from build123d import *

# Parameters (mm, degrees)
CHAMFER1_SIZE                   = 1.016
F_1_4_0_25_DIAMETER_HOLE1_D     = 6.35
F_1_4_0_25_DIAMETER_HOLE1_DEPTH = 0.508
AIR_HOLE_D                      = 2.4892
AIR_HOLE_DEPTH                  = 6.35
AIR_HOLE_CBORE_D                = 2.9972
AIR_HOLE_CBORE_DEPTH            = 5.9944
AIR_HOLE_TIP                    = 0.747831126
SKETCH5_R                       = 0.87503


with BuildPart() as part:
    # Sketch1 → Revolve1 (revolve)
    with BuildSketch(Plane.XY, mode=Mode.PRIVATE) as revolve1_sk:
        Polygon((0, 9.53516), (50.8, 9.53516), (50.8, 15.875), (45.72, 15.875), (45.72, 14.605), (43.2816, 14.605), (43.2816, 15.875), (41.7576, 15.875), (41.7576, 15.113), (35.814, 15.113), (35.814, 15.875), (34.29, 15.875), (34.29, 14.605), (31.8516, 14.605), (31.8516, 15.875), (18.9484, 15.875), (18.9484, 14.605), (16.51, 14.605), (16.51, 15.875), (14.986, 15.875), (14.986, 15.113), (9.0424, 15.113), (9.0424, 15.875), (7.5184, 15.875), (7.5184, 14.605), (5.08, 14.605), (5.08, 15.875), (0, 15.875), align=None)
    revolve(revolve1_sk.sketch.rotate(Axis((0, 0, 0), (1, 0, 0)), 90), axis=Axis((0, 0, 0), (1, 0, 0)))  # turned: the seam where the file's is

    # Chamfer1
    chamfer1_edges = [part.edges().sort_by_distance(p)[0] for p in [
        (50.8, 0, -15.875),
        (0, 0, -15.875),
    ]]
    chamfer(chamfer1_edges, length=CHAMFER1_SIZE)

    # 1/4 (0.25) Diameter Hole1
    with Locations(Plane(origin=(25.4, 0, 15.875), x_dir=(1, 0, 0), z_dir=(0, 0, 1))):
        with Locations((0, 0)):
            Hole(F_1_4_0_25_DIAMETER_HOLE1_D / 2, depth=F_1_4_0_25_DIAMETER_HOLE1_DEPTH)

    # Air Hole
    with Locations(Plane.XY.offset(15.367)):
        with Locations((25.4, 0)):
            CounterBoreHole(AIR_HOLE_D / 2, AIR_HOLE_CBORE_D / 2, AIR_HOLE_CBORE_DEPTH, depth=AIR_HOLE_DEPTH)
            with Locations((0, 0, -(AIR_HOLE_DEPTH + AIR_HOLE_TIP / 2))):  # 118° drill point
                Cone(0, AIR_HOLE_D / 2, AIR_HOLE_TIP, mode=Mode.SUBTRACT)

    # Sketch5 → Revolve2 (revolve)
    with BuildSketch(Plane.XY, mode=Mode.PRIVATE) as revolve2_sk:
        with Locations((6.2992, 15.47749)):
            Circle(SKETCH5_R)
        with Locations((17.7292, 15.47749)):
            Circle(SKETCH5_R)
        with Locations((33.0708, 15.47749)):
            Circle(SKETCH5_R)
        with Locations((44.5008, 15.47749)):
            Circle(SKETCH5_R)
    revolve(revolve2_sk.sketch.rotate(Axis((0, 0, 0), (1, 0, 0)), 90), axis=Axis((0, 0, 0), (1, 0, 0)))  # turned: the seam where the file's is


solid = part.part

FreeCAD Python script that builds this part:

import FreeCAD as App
import Part
import Sketcher

V = App.Vector
Q = App.Units.Quantity


def edges_at(feature, points):
    """Names of the edges that pass closest to the given points."""
    edges = feature.Shape.Edges
    near = lambda p: min(range(len(edges)), key=lambda i: edges[i].distToShape(Part.Vertex(*p))[0])
    return sorted({f"Edge{near(p) + 1}" for p in points})

doc = App.newDocument("Part")
params = doc.addObject("Spreadsheet::Sheet", "Params")
for row, (alias, value) in enumerate([
    ("sketch1_width", "2 in"),
    ("sketch1_width2", "0.2 in"),
    ("sketch1_width3", "0.06 in"),
    ("sketch1_height", "0.05 in"),
    ("sketch1_height2", "0.03 in"),
    ("revolution_angle", "360 deg"),
    ("chamfer_size", "0.04 in"),
    ("sketch2_diameter", "0.25 in"),
    ("hole_diameter", "0.25 in"),
    ("hole_depth", "0.02 in"),
    ("sketch3_diameter", "0.098 in"),
    ("hole2_diameter", "0.098 in"),
    ("hole2_depth", "0.25 in"),
    ("hole2_cbore_diameter", "0.118 in"),
    ("hole2_cbore_depth", "0.236 in"),
    ("revolution2_angle", "360 deg"),
], start=1):
    params.set(f"A{row}", alias)
    params.set(f"B{row}", "=" + value)
    params.setAlias(f"B{row}", alias)

body = doc.addObject("PartDesign::Body", "Body")

sketch1 = body.newObject("Sketcher::SketchObject", "Sketch")
sketch1.AttachmentSupport = (doc.getObject("XY_Plane"), [""])
sketch1.MapMode = "FlatFace"
sketch1.addGeometry([
    Part.LineSegment(V(0, 9.5, 0), V(50.8, 9.5, 0)),
    Part.LineSegment(V(50.8, 9.5, 0), V(50.8, 15.9, 0)),
    Part.LineSegment(V(50.8, 15.9, 0), V(45.7, 15.9, 0)),
    Part.LineSegment(V(45.7, 15.9, 0), V(45.7, 14.6, 0)),
    Part.LineSegment(V(45.7, 14.6, 0), V(43.3, 14.6, 0)),
    Part.LineSegment(V(43.3, 14.6, 0), V(43.3, 15.9, 0)),
    Part.LineSegment(V(43.3, 15.9, 0), V(41.8, 15.9, 0)),
    Part.LineSegment(V(41.8, 15.9, 0), V(41.8, 15.1, 0)),
    Part.LineSegment(V(41.8, 15.1, 0), V(35.8, 15.1, 0)),
    Part.LineSegment(V(35.8, 15.1, 0), V(35.8, 15.9, 0)),
    Part.LineSegment(V(35.8, 15.9, 0), V(34.3, 15.9, 0)),
    Part.LineSegment(V(34.3, 15.9, 0), V(34.3, 14.6, 0)),
    Part.LineSegment(V(34.3, 14.6, 0), V(31.9, 14.6, 0)),
    Part.LineSegment(V(31.9, 14.6, 0), V(31.9, 15.9, 0)),
    Part.LineSegment(V(31.9, 15.9, 0), V(18.9, 15.9, 0)),
    Part.LineSegment(V(18.9, 15.9, 0), V(18.9, 14.6, 0)),
    Part.LineSegment(V(18.9, 14.6, 0), V(16.5, 14.6, 0)),
    Part.LineSegment(V(16.5, 14.6, 0), V(16.5, 15.9, 0)),
    Part.LineSegment(V(16.5, 15.9, 0), V(15, 15.9, 0)),
    Part.LineSegment(V(15, 15.9, 0), V(15, 15.1, 0)),
    Part.LineSegment(V(15, 15.1, 0), V(9, 15.1, 0)),
    Part.LineSegment(V(9, 15.1, 0), V(9, 15.9, 0)),
    Part.LineSegment(V(9, 15.9, 0), V(7.5, 15.9, 0)),
    Part.LineSegment(V(7.5, 15.9, 0), V(7.5, 14.6, 0)),
    Part.LineSegment(V(7.5, 14.6, 0), V(5.1, 14.6, 0)),
    Part.LineSegment(V(5.1, 14.6, 0), V(5.1, 15.9, 0)),
    Part.LineSegment(V(5.1, 15.9, 0), V(0, 15.9, 0)),
    Part.LineSegment(V(0, 15.9, 0), V(0, 9.5, 0)),
], False)
sketch1.addConstraint([
    Sketcher.Constraint("Coincident", 0, 2, 1, 1),
    Sketcher.Constraint("Coincident", 1, 2, 2, 1),
    Sketcher.Constraint("Coincident", 2, 2, 3, 1),
    Sketcher.Constraint("Coincident", 3, 2, 4, 1),
    Sketcher.Constraint("Coincident", 4, 2, 5, 1),
    Sketcher.Constraint("Coincident", 5, 2, 6, 1),
    Sketcher.Constraint("Coincident", 6, 2, 7, 1),
    Sketcher.Constraint("Coincident", 7, 2, 8, 1),
    Sketcher.Constraint("Coincident", 8, 2, 9, 1),
    Sketcher.Constraint("Coincident", 9, 2, 10, 1),
    Sketcher.Constraint("Coincident", 10, 2, 11, 1),
    Sketcher.Constraint("Coincident", 11, 2, 12, 1),
    Sketcher.Constraint("Coincident", 12, 2, 13, 1),
    Sketcher.Constraint("Coincident", 13, 2, 14, 1),
    Sketcher.Constraint("Coincident", 14, 2, 15, 1),
    Sketcher.Constraint("Coincident", 15, 2, 16, 1),
    Sketcher.Constraint("Coincident", 16, 2, 17, 1),
    Sketcher.Constraint("Coincident", 17, 2, 18, 1),
    Sketcher.Constraint("Coincident", 18, 2, 19, 1),
    Sketcher.Constraint("Coincident", 19, 2, 20, 1),
    Sketcher.Constraint("Coincident", 20, 2, 21, 1),
    Sketcher.Constraint("Coincident", 21, 2, 22, 1),
    Sketcher.Constraint("Coincident", 22, 2, 23, 1),
    Sketcher.Constraint("Coincident", 23, 2, 24, 1),
    Sketcher.Constraint("Coincident", 24, 2, 25, 1),
    Sketcher.Constraint("Coincident", 25, 2, 26, 1),
    Sketcher.Constraint("Coincident", 26, 2, 27, 1),
    Sketcher.Constraint("Coincident", 27, 2, 0, 1),
    Sketcher.Constraint("Horizontal", 0),
    Sketcher.Constraint("Vertical", 1),
    Sketcher.Constraint("Horizontal", 2),
    Sketcher.Constraint("Vertical", 3),
    Sketcher.Constraint("Horizontal", 4),
    Sketcher.Constraint("Vertical", 5),
    Sketcher.Constraint("Horizontal", 6),
    Sketcher.Constraint("Vertical", 7),
    Sketcher.Constraint("Horizontal", 8),
    Sketcher.Constraint("Vertical", 9),
    Sketcher.Constraint("Horizontal", 10),
    Sketcher.Constraint("Vertical", 11),
    Sketcher.Constraint("Horizontal", 12),
    Sketcher.Constraint("Vertical", 13),
    Sketcher.Constraint("Horizontal", 14),
    Sketcher.Constraint("Vertical", 15),
    Sketcher.Constraint("Horizontal", 16),
    Sketcher.Constraint("Vertical", 17),
    Sketcher.Constraint("Horizontal", 18),
    Sketcher.Constraint("Vertical", 19),
    Sketcher.Constraint("Horizontal", 20),
    Sketcher.Constraint("Vertical", 21),
    Sketcher.Constraint("Horizontal", 22),
    Sketcher.Constraint("Vertical", 23),
    Sketcher.Constraint("Horizontal", 24),
    Sketcher.Constraint("Vertical", 25),
    Sketcher.Constraint("Horizontal", 26),
    Sketcher.Constraint("Vertical", 27),
    Sketcher.Constraint("PointOnObject", 26, 2, -2),
    Sketcher.Constraint("Horizontal", 2, 2, 5, 2),
    Sketcher.Constraint("Horizontal", 6, 2, 9, 2),
    Sketcher.Constraint("Horizontal", 4, 2, 11, 2),
    Sketcher.Constraint("Horizontal", 10, 2, 13, 2),
    Sketcher.Constraint("Horizontal", 12, 2, 15, 2),
    Sketcher.Constraint("Horizontal", 14, 2, 17, 2),
    Sketcher.Constraint("Horizontal", 8, 2, 19, 2),
    Sketcher.Constraint("Horizontal", 18, 2, 21, 2),
    Sketcher.Constraint("Horizontal", 16, 2, 23, 2),
    Sketcher.Constraint("Horizontal", 22, 2, 25, 2),
    Sketcher.Constraint("Equal", 6, 10),
    Sketcher.Constraint("Equal", 4, 12),
    Sketcher.Constraint("Equal", 12, 16),
    Sketcher.Constraint("Equal", 10, 18),
    Sketcher.Constraint("Equal", 8, 20),
    Sketcher.Constraint("Equal", 18, 22),
    Sketcher.Constraint("Equal", 16, 24),
    Sketcher.Constraint("Equal", 2, 26),
    Sketcher.Constraint("DistanceX", 0, 1, 0, 2, Q("2 in")),
    Sketcher.Constraint("DistanceX", 2, 2, 2, 1, Q("0.2 in")),
    Sketcher.Constraint("DistanceX", 6, 2, 6, 1, Q("0.06 in")),
    Sketcher.Constraint("DistanceY", 3, 2, 3, 1, Q("0.05 in")),
    Sketcher.Constraint("DistanceY", 7, 2, 7, 1, Q("0.03 in")),
    Sketcher.Constraint("DistanceX", 16, 2, 11, 2, Q("0.7 in")),
    Sketcher.Constraint("DistanceX", 4, 2, 4, 1, Q("0.096 in")),
    Sketcher.Constraint("DistanceY", 1, 1, 1, 2, Q("0.2496 in")),
    Sketcher.Constraint("DistanceY", -1, 1, 1, 2, Q("0.625 in")),
])
sketch1.setExpression("Constraints[75]", "Params.sketch1_width")
sketch1.setExpression("Constraints[76]", "Params.sketch1_width2")
sketch1.setExpression("Constraints[77]", "Params.sketch1_width3")
sketch1.setExpression("Constraints[78]", "Params.sketch1_height")
sketch1.setExpression("Constraints[79]", "Params.sketch1_height2")
revolution = body.newObject("PartDesign::Revolution", "Revolution")
revolution.Profile = sketch1
revolution.ReferenceAxis = (sketch1, ["H_Axis"])
revolution.setExpression("Angle", "Params.revolution_angle")
doc.recompute()

chamfer = body.newObject("PartDesign::Chamfer", "Chamfer")
chamfer.Base = (revolution, edges_at(revolution, [(50.8, 0, -15.875), (0, 0, -15.875)]))
chamfer.setExpression("Size", "Params.chamfer_size")

sketch2 = body.newObject("Sketcher::SketchObject", "Sketch001")
sketch2.AttachmentSupport = (doc.getObject("XY_Plane"), [""])
sketch2.MapMode = "FlatFace"
sketch2.AttachmentOffset = App.Placement(V(0, 0, 0.625 * 25.4), App.Rotation())
sketch2.addGeometry(Part.Circle(V(25.4, 0, 0), V(0, 0, 1), 3.2), False)
sketch2.addConstraint([
    Sketcher.Constraint("PointOnObject", 0, 3, -1),
    Sketcher.Constraint("Diameter", 0, Q("0.25 in")),
    Sketcher.Constraint("DistanceX", -1, 1, 0, 3, Q("1 in")),
])
sketch2.setExpression("Constraints[1]", "Params.sketch2_diameter")
doc.recompute()
hole = body.newObject("PartDesign::Hole", "Hole")
hole.Profile = sketch2
hole.ThreadType = "None"
hole.setExpression("Diameter", "Params.hole_diameter")
hole.DepthType = "Dimension"
hole.setExpression("Depth", "Params.hole_depth")
hole.DrillPoint = "Flat"

sketch3 = body.newObject("Sketcher::SketchObject", "Sketch002")
sketch3.AttachmentSupport = (doc.getObject("XY_Plane"), [""])
sketch3.MapMode = "FlatFace"
sketch3.AttachmentOffset = App.Placement(V(0, 0, 0.605 * 25.4), App.Rotation())
sketch3.addGeometry(Part.Circle(V(25.4, 0, 0), V(0, 0, 1), 1.2), False)
sketch3.addConstraint([
    Sketcher.Constraint("PointOnObject", 0, 3, -1),
    Sketcher.Constraint("Diameter", 0, Q("0.098 in")),
    Sketcher.Constraint("DistanceX", -1, 1, 0, 3, Q("1 in")),
])
sketch3.setExpression("Constraints[1]", "Params.sketch3_diameter")
doc.recompute()
hole2 = body.newObject("PartDesign::Hole", "Hole001")
hole2.Profile = sketch3
hole2.ThreadType = "None"
hole2.setExpression("Diameter", "Params.hole2_diameter")
hole2.DepthType = "Dimension"
hole2.setExpression("Depth", "Params.hole2_depth")
hole2.DrillPoint = "Angled"
hole2.DrillPointAngle = 118
hole2.HoleCutType = "Counterbore"
hole2.setExpression("HoleCutDiameter", "Params.hole2_cbore_diameter")
hole2.setExpression("HoleCutDepth", "Params.hole2_cbore_depth")

sketch4 = body.newObject("Sketcher::SketchObject", "Sketch003")
sketch4.AttachmentSupport = (doc.getObject("XY_Plane"), [""])
sketch4.MapMode = "FlatFace"
sketch4.addGeometry([
    Part.Circle(V(6.3, 15.5, 0), V(0, 0, 1), 0.9),
    Part.Circle(V(17.7, 15.5, 0), V(0, 0, 1), 0.9),
    Part.Circle(V(33.1, 15.5, 0), V(0, 0, 1), 0.9),
    Part.Circle(V(44.5, 15.5, 0), V(0, 0, 1), 0.9),
], False)
sketch4.addConstraint([
    Sketcher.Constraint("Equal", 0, 1),
    Sketcher.Constraint("Equal", 1, 2),
    Sketcher.Constraint("Equal", 2, 3),
    Sketcher.Constraint("Horizontal", 0, 3, 1, 3),
    Sketcher.Constraint("Horizontal", 1, 3, 2, 3),
    Sketcher.Constraint("Horizontal", 2, 3, 3, 3),
    Sketcher.Constraint("Diameter", 0, Q("0.0689 in")),
    Sketcher.Constraint("DistanceX", 0, 3, 1, 3, Q("0.45 in")),
    Sketcher.Constraint("DistanceX", 2, 3, 3, 3, Q("0.45 in")),
    Sketcher.Constraint("DistanceX", -1, 1, 0, 3, Q("0.248 in")),
    Sketcher.Constraint("DistanceX", -1, 1, 2, 3, Q("1.302 in")),
    Sketcher.Constraint("DistanceY", -1, 1, 0, 3, Q("15.47749 mm")),
])
revolution2 = body.newObject("PartDesign::Revolution", "Revolution001")
revolution2.Profile = sketch4
revolution2.ReferenceAxis = (sketch4, ["H_Axis"])
revolution2.setExpression("Angle", "Params.revolution2_angle")

doc.recompute()
